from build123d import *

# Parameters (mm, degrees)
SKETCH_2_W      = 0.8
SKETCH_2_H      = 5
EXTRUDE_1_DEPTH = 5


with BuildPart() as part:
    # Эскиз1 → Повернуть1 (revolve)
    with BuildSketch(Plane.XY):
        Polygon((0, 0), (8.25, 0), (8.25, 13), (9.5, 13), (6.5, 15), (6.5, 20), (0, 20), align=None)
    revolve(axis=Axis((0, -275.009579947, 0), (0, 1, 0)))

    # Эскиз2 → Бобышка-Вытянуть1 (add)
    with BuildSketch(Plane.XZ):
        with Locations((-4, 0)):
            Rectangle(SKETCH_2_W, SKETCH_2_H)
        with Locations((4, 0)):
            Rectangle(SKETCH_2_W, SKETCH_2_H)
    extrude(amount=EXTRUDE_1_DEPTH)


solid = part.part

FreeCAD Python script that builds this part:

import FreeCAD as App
import Part
import Sketcher
Q = App.Units.Quantity

doc = App.newDocument("Part")
body = doc.addObject("PartDesign::Body", "Body")

sketch1 = body.newObject("Sketcher::SketchObject", "Sketch")
sketch1.AttachmentSupport = (doc.getObject("XY_Plane"), [""])
sketch1.MapMode = "FlatFace"
sketch1.addGeometry([
    Part.LineSegment(App.Vector(0, 0, 0), App.Vector(8.2, 0, 0)),
    Part.LineSegment(App.Vector(8.2, 0, 0), App.Vector(8.2, 13, 0)),
    Part.LineSegment(App.Vector(8.2, 13, 0), App.Vector(9.5, 13, 0)),
    Part.LineSegment(App.Vector(9.5, 13, 0), App.Vector(6.5, 15, 0)),
    Part.LineSegment(App.Vector(6.5, 15, 0), App.Vector(6.5, 20, 0)),
    Part.LineSegment(App.Vector(6.5, 20, 0), App.Vector(0, 20, 0)),
    Part.LineSegment(App.Vector(0, 20, 0), App.Vector(0, 0, 0)),
], False)
sketch1.addConstraint([
    Sketcher.Constraint("Coincident", 0, 2, 1, 1),
    Sketcher.Constraint("Coincident", 1, 2, 2, 1),
    Sketcher.Constraint("Coincident", 2, 2, 3, 1),
    Sketcher.Constraint("Coincident", 3, 2, 4, 1),
    Sketcher.Constraint("Coincident", 4, 2, 5, 1),
    Sketcher.Constraint("Coincident", 5, 2, 6, 1),
    Sketcher.Constraint("Coincident", 6, 2, 0, 1),
    Sketcher.Constraint("Horizontal", 0),
    Sketcher.Constraint("Vertical", 1),
    Sketcher.Constraint("Horizontal", 2),
    Sketcher.Constraint("Vertical", 4),
    Sketcher.Constraint("Horizontal", 5),
    Sketcher.Constraint("Vertical", 6),
    Sketcher.Constraint("Coincident", 6, 2, -1, 1),
    Sketcher.Constraint("DistanceY", 1, 1, 1, 2, Q("13 mm")),
    Sketcher.Constraint("DistanceY", 4, 1, 4, 2, Q("5 mm")),
    Sketcher.Constraint("DistanceY", 6, 2, 6, 1, Q("20 mm")),
    Sketcher.Constraint("DistanceX", 5, 2, 5, 1, Q("6.5 mm")),
    Sketcher.Constraint("DistanceX", 3, 2, 2, 2, Q("3 mm")),
    Sketcher.Constraint("DistanceX", 0, 1, 0, 2, Q("8.25 mm")),
])
revolution = body.newObject("PartDesign::Revolution", "Revolution")
revolution.Profile = sketch1
revolution.ReferenceAxis = (sketch1, ["V_Axis"])
revolution.Angle = 360

sketch2 = body.newObject("Sketcher::SketchObject", "Sketch001")
sketch2.AttachmentSupport = (doc.getObject("XZ_Plane"), [""])
sketch2.MapMode = "FlatFace"
sketch2.addGeometry([
    Part.LineSegment(App.Vector(-4.4, 2.5, 0), App.Vector(-4.4, -2.5, 0)),
    Part.LineSegment(App.Vector(-4.4, -2.5, 0), App.Vector(-3.6, -2.5, 0)),
    Part.LineSegment(App.Vector(-3.6, -2.5, 0), App.Vector(-3.6, 2.5, 0)),
    Part.LineSegment(App.Vector(-3.6, 2.5, 0), App.Vector(-4.4, 2.5, 0)),
    Part.LineSegment(App.Vector(3.6, 2.5, 0), App.Vector(3.6, -2.5, 0)),
    Part.LineSegment(App.Vector(3.6, -2.5, 0), App.Vector(4.4, -2.5, 0)),
    Part.LineSegment(App.Vector(4.4, -2.5, 0), App.Vector(4.4, 2.5, 0)),
    Part.LineSegment(App.Vector(4.4, 2.5, 0), App.Vector(3.6, 2.5, 0)),
], False)
sketch2.addConstraint([
    Sketcher.Constraint("Coincident", 0, 2, 1, 1),
    Sketcher.Constraint("Coincident", 1, 2, 2, 1),
    Sketcher.Constraint("Coincident", 2, 2, 3, 1),
    Sketcher.Constraint("Coincident", 3, 2, 0, 1),
    Sketcher.Constraint("Coincident", 4, 2, 5, 1),
    Sketcher.Constraint("Coincident", 5, 2, 6, 1),
    Sketcher.Constraint("Coincident", 6, 2, 7, 1),
    Sketcher.Constraint("Coincident", 7, 2, 4, 1),
    Sketcher.Constraint("Vertical", 0),
    Sketcher.Constraint("Horizontal", 1),
    Sketcher.Constraint("Vertical", 2),
    Sketcher.Constraint("Horizontal", 3),
    Sketcher.Constraint("Vertical", 4),
    Sketcher.Constraint("Horizontal", 5),
    Sketcher.Constraint("Vertical", 6),
    Sketcher.Constraint("Horizontal", 7),
    Sketcher.Constraint("Symmetric", 2, 2, 4, 2, -1, 1),
    Sketcher.Constraint("Symmetric", 0, 2, 6, 2, -1, 1),
    Sketcher.Constraint("Horizontal", 1, 2, 4, 2),
    Sketcher.Constraint("DistanceY", 0, 2, 0, 1, Q("5 mm")),
    Sketcher.Constraint("DistanceX", 1, 1, 1, 2, Q("0.8 mm")),
    Sketcher.Constraint("DistanceX", 0, 2, 4, 2, Q("8 mm")),
])
pad1 = body.newObject("PartDesign::Pad", "Pad")
pad1.Profile = sketch2
pad1.Length = 5

doc.recompute()
